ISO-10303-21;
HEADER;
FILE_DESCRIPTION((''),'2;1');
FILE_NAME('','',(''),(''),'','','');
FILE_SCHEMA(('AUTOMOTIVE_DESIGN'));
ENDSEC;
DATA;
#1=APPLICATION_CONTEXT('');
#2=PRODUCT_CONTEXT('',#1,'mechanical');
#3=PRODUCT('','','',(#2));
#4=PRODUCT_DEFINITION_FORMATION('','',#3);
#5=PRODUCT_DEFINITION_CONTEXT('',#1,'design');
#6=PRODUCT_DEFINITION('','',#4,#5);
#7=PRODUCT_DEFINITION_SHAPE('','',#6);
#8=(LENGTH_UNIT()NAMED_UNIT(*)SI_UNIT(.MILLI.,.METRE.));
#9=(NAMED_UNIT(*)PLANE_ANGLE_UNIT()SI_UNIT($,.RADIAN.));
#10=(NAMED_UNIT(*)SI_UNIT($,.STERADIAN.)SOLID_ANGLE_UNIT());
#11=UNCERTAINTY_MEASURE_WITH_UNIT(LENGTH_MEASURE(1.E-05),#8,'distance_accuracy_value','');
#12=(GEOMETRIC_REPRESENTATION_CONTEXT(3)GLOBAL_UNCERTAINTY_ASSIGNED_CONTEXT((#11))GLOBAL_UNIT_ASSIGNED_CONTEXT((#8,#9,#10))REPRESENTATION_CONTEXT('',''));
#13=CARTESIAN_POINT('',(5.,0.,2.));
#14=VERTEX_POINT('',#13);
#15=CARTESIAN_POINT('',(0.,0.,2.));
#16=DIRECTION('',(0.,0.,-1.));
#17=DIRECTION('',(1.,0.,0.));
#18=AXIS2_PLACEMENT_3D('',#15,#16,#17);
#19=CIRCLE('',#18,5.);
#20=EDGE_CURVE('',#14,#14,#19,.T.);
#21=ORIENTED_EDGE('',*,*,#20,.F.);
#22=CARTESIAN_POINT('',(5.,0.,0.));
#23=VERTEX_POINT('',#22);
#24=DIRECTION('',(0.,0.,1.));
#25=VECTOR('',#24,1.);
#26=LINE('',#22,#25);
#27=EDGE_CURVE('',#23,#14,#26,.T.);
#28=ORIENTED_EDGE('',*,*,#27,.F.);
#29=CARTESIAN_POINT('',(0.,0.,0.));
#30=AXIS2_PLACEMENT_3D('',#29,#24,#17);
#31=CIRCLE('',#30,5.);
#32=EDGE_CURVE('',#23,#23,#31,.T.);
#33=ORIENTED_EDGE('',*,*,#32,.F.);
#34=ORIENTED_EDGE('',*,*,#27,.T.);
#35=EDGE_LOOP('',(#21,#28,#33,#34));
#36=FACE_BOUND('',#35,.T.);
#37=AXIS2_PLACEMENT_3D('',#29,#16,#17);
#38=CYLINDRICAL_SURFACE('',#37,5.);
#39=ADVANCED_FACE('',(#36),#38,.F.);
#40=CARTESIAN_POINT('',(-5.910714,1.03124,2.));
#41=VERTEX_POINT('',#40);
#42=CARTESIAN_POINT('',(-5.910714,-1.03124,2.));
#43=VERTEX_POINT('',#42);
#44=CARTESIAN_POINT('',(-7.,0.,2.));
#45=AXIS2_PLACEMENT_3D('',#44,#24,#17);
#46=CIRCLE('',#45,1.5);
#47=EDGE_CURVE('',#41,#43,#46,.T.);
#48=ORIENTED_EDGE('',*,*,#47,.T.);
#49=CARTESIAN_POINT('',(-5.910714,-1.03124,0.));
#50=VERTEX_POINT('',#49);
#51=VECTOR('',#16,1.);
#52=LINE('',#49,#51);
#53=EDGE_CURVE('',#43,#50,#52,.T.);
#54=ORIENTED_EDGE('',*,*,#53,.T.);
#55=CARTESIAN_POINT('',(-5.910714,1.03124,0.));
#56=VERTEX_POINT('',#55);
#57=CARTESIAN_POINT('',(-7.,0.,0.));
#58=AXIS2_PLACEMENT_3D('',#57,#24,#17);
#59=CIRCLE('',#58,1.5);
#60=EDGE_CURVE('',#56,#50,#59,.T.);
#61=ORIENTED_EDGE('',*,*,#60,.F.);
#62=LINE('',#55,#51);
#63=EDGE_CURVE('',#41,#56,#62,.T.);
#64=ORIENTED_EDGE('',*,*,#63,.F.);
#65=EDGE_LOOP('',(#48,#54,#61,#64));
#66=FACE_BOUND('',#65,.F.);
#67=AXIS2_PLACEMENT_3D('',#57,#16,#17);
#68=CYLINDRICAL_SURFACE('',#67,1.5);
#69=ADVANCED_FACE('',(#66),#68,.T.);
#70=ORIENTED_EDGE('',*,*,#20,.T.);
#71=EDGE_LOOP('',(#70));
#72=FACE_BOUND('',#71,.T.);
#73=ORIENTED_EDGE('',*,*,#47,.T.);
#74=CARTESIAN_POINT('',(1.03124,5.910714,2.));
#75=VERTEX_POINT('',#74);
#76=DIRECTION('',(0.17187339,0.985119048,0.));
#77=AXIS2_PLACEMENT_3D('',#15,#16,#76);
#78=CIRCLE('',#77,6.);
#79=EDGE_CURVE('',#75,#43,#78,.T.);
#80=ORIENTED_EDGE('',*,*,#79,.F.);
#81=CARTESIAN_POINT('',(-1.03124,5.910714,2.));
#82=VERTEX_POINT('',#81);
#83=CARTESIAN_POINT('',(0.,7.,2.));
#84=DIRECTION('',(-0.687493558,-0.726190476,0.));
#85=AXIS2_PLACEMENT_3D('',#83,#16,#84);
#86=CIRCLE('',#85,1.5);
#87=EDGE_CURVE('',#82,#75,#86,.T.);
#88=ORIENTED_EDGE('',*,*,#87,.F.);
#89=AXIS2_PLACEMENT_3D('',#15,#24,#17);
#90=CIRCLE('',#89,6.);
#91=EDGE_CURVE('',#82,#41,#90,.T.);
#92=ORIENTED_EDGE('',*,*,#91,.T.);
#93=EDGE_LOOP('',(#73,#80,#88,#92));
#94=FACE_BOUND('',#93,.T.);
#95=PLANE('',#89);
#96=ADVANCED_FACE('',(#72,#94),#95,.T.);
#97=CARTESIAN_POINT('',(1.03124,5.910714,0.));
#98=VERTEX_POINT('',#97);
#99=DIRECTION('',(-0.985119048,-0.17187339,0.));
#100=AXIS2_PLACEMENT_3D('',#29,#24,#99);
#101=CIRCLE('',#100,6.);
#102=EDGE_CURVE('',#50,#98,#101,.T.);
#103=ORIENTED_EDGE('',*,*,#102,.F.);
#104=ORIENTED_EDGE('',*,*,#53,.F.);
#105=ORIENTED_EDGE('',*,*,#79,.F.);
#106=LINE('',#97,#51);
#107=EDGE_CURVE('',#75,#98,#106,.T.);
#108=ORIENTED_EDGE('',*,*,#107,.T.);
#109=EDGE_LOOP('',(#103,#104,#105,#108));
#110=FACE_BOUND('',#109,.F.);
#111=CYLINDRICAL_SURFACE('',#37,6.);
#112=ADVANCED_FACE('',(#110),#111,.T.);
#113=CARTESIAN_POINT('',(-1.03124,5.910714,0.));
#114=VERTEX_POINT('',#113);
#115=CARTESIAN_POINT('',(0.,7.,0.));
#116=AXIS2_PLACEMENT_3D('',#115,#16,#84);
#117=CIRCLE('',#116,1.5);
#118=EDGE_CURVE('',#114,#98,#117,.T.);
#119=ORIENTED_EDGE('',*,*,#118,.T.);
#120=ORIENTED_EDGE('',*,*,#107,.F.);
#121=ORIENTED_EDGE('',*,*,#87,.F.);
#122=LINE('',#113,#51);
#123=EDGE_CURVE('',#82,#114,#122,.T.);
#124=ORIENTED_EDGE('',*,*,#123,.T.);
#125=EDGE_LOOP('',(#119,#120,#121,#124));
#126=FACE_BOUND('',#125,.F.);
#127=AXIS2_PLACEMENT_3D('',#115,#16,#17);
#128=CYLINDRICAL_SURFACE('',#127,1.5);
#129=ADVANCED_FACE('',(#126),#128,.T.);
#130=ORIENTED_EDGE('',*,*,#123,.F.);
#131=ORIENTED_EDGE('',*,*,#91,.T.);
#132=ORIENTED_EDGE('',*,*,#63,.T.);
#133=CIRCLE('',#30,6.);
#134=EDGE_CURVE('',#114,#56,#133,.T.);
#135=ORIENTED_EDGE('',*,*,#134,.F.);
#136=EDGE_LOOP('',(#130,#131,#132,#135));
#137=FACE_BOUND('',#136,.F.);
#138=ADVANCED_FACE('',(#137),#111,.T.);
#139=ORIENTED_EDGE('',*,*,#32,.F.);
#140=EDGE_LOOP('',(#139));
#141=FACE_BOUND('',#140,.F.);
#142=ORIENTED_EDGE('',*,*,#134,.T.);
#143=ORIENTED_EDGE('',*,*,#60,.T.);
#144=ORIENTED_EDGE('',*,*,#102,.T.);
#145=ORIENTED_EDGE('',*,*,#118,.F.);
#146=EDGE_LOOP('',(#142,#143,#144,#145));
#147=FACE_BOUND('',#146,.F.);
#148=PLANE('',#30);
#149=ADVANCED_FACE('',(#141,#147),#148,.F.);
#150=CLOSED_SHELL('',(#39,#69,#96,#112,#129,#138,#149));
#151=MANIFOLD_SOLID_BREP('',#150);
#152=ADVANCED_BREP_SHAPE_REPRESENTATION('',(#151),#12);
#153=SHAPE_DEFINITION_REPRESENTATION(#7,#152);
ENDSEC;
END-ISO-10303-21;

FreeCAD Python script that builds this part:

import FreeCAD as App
import Part
import Sketcher

doc = App.newDocument("Part")
params = doc.addObject("Spreadsheet::Sheet", "Params")
for row, (alias, value) in enumerate([
    ("sketch1_diameter", "3 mm"),
    ("pad1_length", "2 mm"),
    ("sketch2_diameter", "10 mm"),
    ("pad2_length", "3 mm"),
    ("sketch3_diameter", "12 mm"),
    ("pad3_length", "2 mm"),
    ("sketch4_diameter", "3 mm"),
    ("pad4_length", "2 mm"),
], start=1):
    params.set(f"A{row}", alias)
    params.set(f"B{row}", "=" + value)
    params.setAlias(f"B{row}", alias)

body = doc.addObject("PartDesign::Body", "Body")

# Sketch on XY plane
sketch1 = body.newObject("Sketcher::SketchObject", "Sketch")
sketch1.AttachmentSupport = (doc.getObject("XY_Plane"), [""])
sketch1.MapMode = "FlatFace"
sketch1.addGeometry(Part.Circle(App.Vector(0, 7, 0), App.Vector(0, 0, 1), 1.5), False)
sketch1.addConstraint(Sketcher.Constraint("PointOnObject", 0, 3, -2))
sketch1.addConstraint(Sketcher.Constraint("Diameter", 0, 3.0))
sketch1.addConstraint(Sketcher.Constraint("DistanceY", -1, 1, 0, 3, 7.0))
sketch1.setExpression("Constraints[1]", "Params.sketch1_diameter")
pad1 = body.newObject("PartDesign::Pad", "Pad")
pad1.Profile = sketch1
pad1.setExpression("Length", "Params.pad1_length")
body2 = doc.addObject("PartDesign::Body", "Body001")

# Sketch on XY plane
sketch2 = body2.newObject("Sketcher::SketchObject", "Sketch001")
sketch2.AttachmentSupport = (doc.getObject("XY_Plane001"), [""])
sketch2.MapMode = "FlatFace"
sketch2.addGeometry(Part.Circle(App.Vector(0, 0, 0), App.Vector(0, 0, 1), 5), False)
sketch2.addConstraint(Sketcher.Constraint("Coincident", 0, 3, -1, 1))
sketch2.addConstraint(Sketcher.Constraint("Diameter", 0, 10.0))
sketch2.setExpression("Constraints[1]", "Params.sketch2_diameter")
pad2 = body2.newObject("PartDesign::Pad", "Pad001")
pad2.Profile = sketch2
pad2.setExpression("Length", "Params.pad2_length")
body3 = doc.addObject("PartDesign::Body", "Body002")

# Sketch on XY plane
sketch3 = body3.newObject("Sketcher::SketchObject", "Sketch002")
sketch3.AttachmentSupport = (doc.getObject("XY_Plane002"), [""])
sketch3.MapMode = "FlatFace"
sketch3.addGeometry(Part.Circle(App.Vector(0, 0, 0), App.Vector(0, 0, 1), 6), False)
sketch3.addConstraint(Sketcher.Constraint("Coincident", 0, 3, -1, 1))
sketch3.addConstraint(Sketcher.Constraint("Diameter", 0, 12.0))
sketch3.setExpression("Constraints[1]", "Params.sketch3_diameter")
pad3 = body3.newObject("PartDesign::Pad", "Pad002")
pad3.Profile = sketch3
pad3.setExpression("Length", "Params.pad3_length")
doc.recompute()

boolean = body3.newObject("PartDesign::Boolean", "Boolean")
boolean.Type = "Cut"
boolean.addObjects([body2])
body4 = doc.addObject("PartDesign::Body", "Body003")
body4.AllowCompound = True

# Sketch on XY plane
sketch4 = body4.newObject("Sketcher::SketchObject", "Sketch003")
sketch4.AttachmentSupport = (doc.getObject("XY_Plane003"), [""])
sketch4.MapMode = "FlatFace"
sketch4.addGeometry(Part.Circle(App.Vector(-7, 0, 0), App.Vector(0, 0, 1), 1.5), False)
sketch4.addConstraint(Sketcher.Constraint("PointOnObject", 0, 3, -1))
sketch4.addConstraint(Sketcher.Constraint("Diameter", 0, 3.0))
sketch4.addConstraint(Sketcher.Constraint("DistanceX", 0, 3, -1, 1, 7.0))
sketch4.setExpression("Constraints[1]", "Params.sketch4_diameter")
pad4 = body4.newObject("PartDesign::Pad", "Pad003")
pad4.Profile = sketch4
pad4.setExpression("Length", "Params.pad4_length")
doc.recompute()

boolean2 = body4.newObject("PartDesign::Boolean", "Boolean001")
boolean2.Type = "Fuse"
boolean2.addObjects([body])
doc.recompute()

boolean3 = body4.newObject("PartDesign::Boolean", "Boolean002")
boolean3.Type = "Fuse"
boolean3.addObjects([body3])

doc.recompute()
